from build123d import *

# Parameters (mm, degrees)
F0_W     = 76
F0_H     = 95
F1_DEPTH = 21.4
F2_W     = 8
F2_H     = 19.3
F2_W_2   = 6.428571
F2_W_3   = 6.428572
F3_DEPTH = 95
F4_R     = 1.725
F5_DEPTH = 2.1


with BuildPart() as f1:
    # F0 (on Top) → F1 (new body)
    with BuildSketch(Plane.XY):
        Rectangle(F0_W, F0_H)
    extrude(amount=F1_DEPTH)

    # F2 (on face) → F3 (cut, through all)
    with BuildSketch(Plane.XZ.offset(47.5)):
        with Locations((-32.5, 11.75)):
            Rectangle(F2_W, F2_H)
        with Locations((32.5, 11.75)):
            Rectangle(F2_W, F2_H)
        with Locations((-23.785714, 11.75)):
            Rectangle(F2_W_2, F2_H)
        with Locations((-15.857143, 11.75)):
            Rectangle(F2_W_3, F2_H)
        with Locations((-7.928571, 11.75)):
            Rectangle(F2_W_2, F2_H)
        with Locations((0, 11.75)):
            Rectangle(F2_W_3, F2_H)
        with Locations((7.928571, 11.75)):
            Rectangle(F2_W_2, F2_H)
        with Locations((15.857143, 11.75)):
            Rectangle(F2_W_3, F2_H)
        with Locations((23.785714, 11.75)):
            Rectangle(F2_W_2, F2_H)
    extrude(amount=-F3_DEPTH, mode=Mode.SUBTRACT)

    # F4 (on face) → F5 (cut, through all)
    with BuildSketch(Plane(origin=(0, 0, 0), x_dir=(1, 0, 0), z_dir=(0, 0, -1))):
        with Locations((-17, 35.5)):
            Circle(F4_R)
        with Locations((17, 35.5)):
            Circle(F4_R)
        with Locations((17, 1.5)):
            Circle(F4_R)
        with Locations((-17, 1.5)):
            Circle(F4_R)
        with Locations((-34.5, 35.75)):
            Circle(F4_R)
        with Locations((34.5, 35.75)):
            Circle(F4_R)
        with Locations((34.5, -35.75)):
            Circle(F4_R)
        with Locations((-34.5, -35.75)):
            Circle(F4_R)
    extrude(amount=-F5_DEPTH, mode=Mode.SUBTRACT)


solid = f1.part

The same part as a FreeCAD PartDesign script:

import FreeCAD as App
import Part
import Sketcher
from FreeCAD import Vector


def add_polygon(sketch, points):
    """Adds a closed chain of lines whose ends are joined by coincident constraints."""
    first, n = sketch.GeometryCount, len(points)
    for a, b in zip(points, points[1:] + points[:1]):
        sketch.addGeometry(Part.LineSegment(App.Vector(*a, 0), App.Vector(*b, 0)), False)
    for i in range(n):
        sketch.addConstraint(Sketcher.Constraint("Coincident", first + i, 2, first + (i + 1) % n, 1))

doc = App.newDocument("Part")
body = doc.addObject("PartDesign::Body", "Body")

sketch1 = body.newObject("Sketcher::SketchObject", "Sketch")
sketch1.AttachmentSupport = (doc.getObject("XY_Plane"), [""])
sketch1.MapMode = "FlatFace"
add_polygon(sketch1, [(-38, 47.5), (-38, -47.5), (38, -47.5), (38, 47.5)])
sketch1.addConstraint([
    Sketcher.Constraint("Vertical", 0),
    Sketcher.Constraint("Horizontal", 1),
    Sketcher.Constraint("Vertical", 2),
    Sketcher.Constraint("Horizontal", 3),
    Sketcher.Constraint("Symmetric", 0, 2, 2, 2, -1, 1),
    Sketcher.Constraint("DistanceX", 1, 1, 1, 2, 76.0),
    Sketcher.Constraint("DistanceY", 0, 2, 0, 1, 95.0),
])
pad1 = body.newObject("PartDesign::Pad", "Pad")
pad1.Profile = sketch1
pad1.Length = 21.4

sketch2 = body.newObject("Sketcher::SketchObject", "Sketch001")
sketch2.AttachmentSupport = (doc.getObject("XZ_Plane"), [""])
sketch2.MapMode = "FlatFace"
sketch2.AttachmentOffset = App.Placement(Vector(0, 0, 47.5), App.Rotation())
add_polygon(sketch2, [(-36.5, 21.4), (-36.5, 2.1), (-28.5, 2.1), (-28.5, 21.4)])
add_polygon(sketch2, [(28.5, 21.4), (28.5, 2.1), (36.5, 2.1), (36.5, 21.4)])
add_polygon(sketch2, [(-27, 21.4), (-27, 2.1), (-20.571428, 2.1), (-20.571428, 21.4)])
add_polygon(sketch2, [(-19.071429, 21.4), (-19.071429, 2.1), (-12.642857, 2.1), (-12.642857, 21.4)])
add_polygon(sketch2, [(-11.142857, 21.4), (-11.142857, 2.1), (-4.714285, 2.1), (-4.714285, 21.4)])
add_polygon(sketch2, [(-3.214286, 21.4), (-3.214286, 2.1), (3.214286, 2.1), (3.214286, 21.4)])
add_polygon(sketch2, [(4.714285, 21.4), (4.714285, 2.1), (11.142857, 2.1), (11.142857, 21.4)])
add_polygon(sketch2, [(12.642857, 21.4), (12.642857, 2.1), (19.071429, 2.1), (19.071429, 21.4)])
add_polygon(sketch2, [(20.571428, 21.4), (20.571428, 2.1), (27, 2.1), (27, 21.4)])
sketch2.addConstraint([
    Sketcher.Constraint("Vertical", 0),
    Sketcher.Constraint("Horizontal", 1),
    Sketcher.Constraint("Vertical", 2),
    Sketcher.Constraint("Horizontal", 3),
    Sketcher.Constraint("Vertical", 4),
    Sketcher.Constraint("Horizontal", 5),
    Sketcher.Constraint("Vertical", 6),
    Sketcher.Constraint("Horizontal", 7),
    Sketcher.Constraint("Vertical", 8),
    Sketcher.Constraint("Horizontal", 9),
    Sketcher.Constraint("Vertical", 10),
    Sketcher.Constraint("Horizontal", 11),
    Sketcher.Constraint("Vertical", 12),
    Sketcher.Constraint("Horizontal", 13),
    Sketcher.Constraint("Vertical", 14),
    Sketcher.Constraint("Horizontal", 15),
    Sketcher.Constraint("Vertical", 16),
    Sketcher.Constraint("Horizontal", 17),
    Sketcher.Constraint("Vertical", 18),
    Sketcher.Constraint("Horizontal", 19),
    Sketcher.Constraint("Vertical", 20),
    Sketcher.Constraint("Horizontal", 21),
    Sketcher.Constraint("Vertical", 22),
    Sketcher.Constraint("Horizontal", 23),
    Sketcher.Constraint("Vertical", 24),
    Sketcher.Constraint("Horizontal", 25),
    Sketcher.Constraint("Vertical", 26),
    Sketcher.Constraint("Horizontal", 27),
    Sketcher.Constraint("Vertical", 28),
    Sketcher.Constraint("Horizontal", 29),
    Sketcher.Constraint("Vertical", 30),
    Sketcher.Constraint("Horizontal", 31),
    Sketcher.Constraint("Vertical", 32),
    Sketcher.Constraint("Horizontal", 33),
    Sketcher.Constraint("Vertical", 34),
    Sketcher.Constraint("Horizontal", 35),
    Sketcher.Constraint("Symmetric", 1, 2, 4, 2, -2),
    Sketcher.Constraint("Symmetric", 3, 2, 6, 2, -2),
    Sketcher.Constraint("Symmetric", 17, 2, 24, 2, -2),
    Sketcher.Constraint("Symmetric", 19, 2, 26, 2, -2),
    Sketcher.Constraint("Symmetric", 13, 2, 28, 2, -2),
    Sketcher.Constraint("Symmetric", 15, 2, 30, 2, -2),
    Sketcher.Constraint("Symmetric", 9, 2, 32, 2, -2),
    Sketcher.Constraint("Symmetric", 11, 2, 34, 2, -2),
    Sketcher.Constraint("Horizontal", 5, 2, 8, 2),
    Sketcher.Constraint("Horizontal", 7, 2, 10, 2),
    Sketcher.Constraint("Horizontal", 9, 2, 12, 2),
    Sketcher.Constraint("Horizontal", 11, 2, 14, 2),
    Sketcher.Constraint("Horizontal", 13, 2, 16, 2),
    Sketcher.Constraint("Horizontal", 15, 2, 18, 2),
    Sketcher.Constraint("Horizontal", 17, 2, 20, 2),
    Sketcher.Constraint("Horizontal", 19, 2, 22, 2),
    Sketcher.Constraint("Equal", 11, 13),
    Sketcher.Constraint("Equal", 15, 17),
    Sketcher.Constraint("Equal", 19, 21),
    Sketcher.Constraint("DistanceX", 1, 1, 1, 2, 8.0),
    Sketcher.Constraint("DistanceY", 0, 2, 0, 1, 19.3),
    Sketcher.Constraint("DistanceX", 8, 2, -1, 1, 27.0),
    Sketcher.Constraint("DistanceX", 1, 2, 4, 2, 57.0),
    Sketcher.Constraint("DistanceY", -1, 1, 0, 2, 2.1),
    Sketcher.Constraint("DistanceX", 9, 2, 12, 2, 1.5),
    Sketcher.Constraint("DistanceX", 13, 2, 16, 2, 1.5),
    Sketcher.Constraint("DistanceX", 17, 2, 20, 2, 1.499999),
    Sketcher.Constraint("DistanceX", 21, 2, 24, 2, 1.499999),
])
pocket1 = body.newObject("PartDesign::Pocket", "Pocket")
pocket1.Profile = sketch2
pocket1.Type = "ThroughAll"

sketch3 = body.newObject("Sketcher::SketchObject", "Sketch002")
sketch3.AttachmentSupport = (doc.getObject("XY_Plane"), [""])
sketch3.MapMode = "FlatFace"
sketch3.addGeometry([
    Part.Circle(Vector(-17, -35.5, 0), Vector(0, 0, 1), 1.725),
    Part.Circle(Vector(17, -35.5, 0), Vector(0, 0, 1), 1.725),
    Part.Circle(Vector(17, -1.5, 0), Vector(0, 0, 1), 1.725),
    Part.Circle(Vector(-17, -1.5, 0), Vector(0, 0, 1), 1.725),
    Part.Circle(Vector(-34.5, -35.75, 0), Vector(0, 0, 1), 1.725),
    Part.Circle(Vector(34.5, -35.75, 0), Vector(0, 0, 1), 1.725),
    Part.Circle(Vector(34.5, 35.75, 0), Vector(0, 0, 1), 1.725),
    Part.Circle(Vector(-34.5, 35.75, 0), Vector(0, 0, 1), 1.725),
], False)
sketch3.addConstraint([
    Sketcher.Constraint("Equal", 0, 1),
    Sketcher.Constraint("Equal", 1, 2),
    Sketcher.Constraint("Equal", 2, 3),
    Sketcher.Constraint("Equal", 3, 4),
    Sketcher.Constraint("Equal", 4, 5),
    Sketcher.Constraint("Equal", 5, 6),
    Sketcher.Constraint("Equal", 6, 7),
    Sketcher.Constraint("Symmetric", 4, 3, 6, 3, -1, 1),
    Sketcher.Constraint("Symmetric", 5, 3, 7, 3, -1, 1),
    Sketcher.Constraint("Symmetric", 0, 3, 1, 3, -2),
    Sketcher.Constraint("Symmetric", 2, 3, 3, 3, -2),
    Sketcher.Constraint("Symmetric", 4, 3, 5, 3, -2),
    Sketcher.Constraint("Vertical", 1, 3, 2, 3),
    Sketcher.Constraint("Diameter", 0, 3.45),
    Sketcher.Constraint("DistanceX", 0, 3, -1, 1, 17.0),
    Sketcher.Constraint("DistanceY", 1, 3, 2, 3, 34.0),
    Sketcher.Constraint("DistanceX", 4, 3, 5, 3, 69.0),
    Sketcher.Constraint("DistanceY", 0, 3, -1, 1, 35.5),
    Sketcher.Constraint("DistanceY", 5, 3, 6, 3, 71.5),
])
pocket2 = body.newObject("PartDesign::Pocket", "Pocket001")
pocket2.Profile = sketch3
pocket2.Type = "ThroughAll"
pocket2.Reversed = True

doc.recompute()
